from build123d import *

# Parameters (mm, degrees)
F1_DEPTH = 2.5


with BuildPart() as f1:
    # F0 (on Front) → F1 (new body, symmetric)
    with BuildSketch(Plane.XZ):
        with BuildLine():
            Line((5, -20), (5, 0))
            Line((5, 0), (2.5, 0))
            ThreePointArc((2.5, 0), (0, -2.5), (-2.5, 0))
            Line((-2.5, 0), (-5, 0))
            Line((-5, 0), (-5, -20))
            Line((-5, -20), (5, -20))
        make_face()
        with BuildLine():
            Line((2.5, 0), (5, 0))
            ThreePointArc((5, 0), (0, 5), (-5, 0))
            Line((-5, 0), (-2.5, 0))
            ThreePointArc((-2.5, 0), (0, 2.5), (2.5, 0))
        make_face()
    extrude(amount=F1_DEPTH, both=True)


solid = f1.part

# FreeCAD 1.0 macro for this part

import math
import FreeCAD as App
import Part
import Sketcher
from FreeCAD import Vector

doc = App.newDocument("Part")
body = doc.addObject("PartDesign::Body", "Body")

# Sketch on XZ plane
sketch1 = doc.addObject("Sketcher::SketchObject", "Sketch")
body.addObject(sketch1)
sketch1.AttachmentSupport = (doc.XZ_Plane, [""])
sketch1.MapMode = "FlatFace"
sketch1.addGeometry(Part.LineSegment(Vector(5, -20, 0), Vector(5, 0, 0)), False)
sketch1.addGeometry(Part.ArcOfCircle(Part.Circle(Vector(0, 0, 0), Vector(0, 0, 1), 5), math.radians(0), math.radians(180)), False)
sketch1.addGeometry(Part.LineSegment(Vector(-5, 0, 0), Vector(-5, -20, 0)), False)
sketch1.addGeometry(Part.LineSegment(Vector(-5, -20, 0), Vector(5, -20, 0)), False)
sketch1.addGeometry(Part.Circle(Vector(0, 0, 0), Vector(0, 0, 1), 2.5), False)
sketch1.addConstraint(Sketcher.Constraint("Tangent", 0, 2, 1, 1))
sketch1.addConstraint(Sketcher.Constraint("Tangent", 1, 2, 2, 1))
sketch1.addConstraint(Sketcher.Constraint("Coincident", 2, 2, 3, 1))
sketch1.addConstraint(Sketcher.Constraint("Coincident", 3, 2, 0, 1))
sketch1.addConstraint(Sketcher.Constraint("Vertical", 0))
sketch1.addConstraint(Sketcher.Constraint("Vertical", 2))
sketch1.addConstraint(Sketcher.Constraint("Horizontal", 3))
sketch1.addConstraint(Sketcher.Constraint("Coincident", 1, 3, -1, 1))
sketch1.addConstraint(Sketcher.Constraint("Coincident", 4, 3, -1, 1))
sketch1.addConstraint(Sketcher.Constraint("Diameter", 4, 5.0))
sketch1.addConstraint(Sketcher.Constraint("Radius", 1, 5.0))
sketch1.addConstraint(Sketcher.Constraint("DistanceY", 0, 1, 0, 2, 20.0))
pad1 = doc.addObject("PartDesign::Pad", "Pad")
body.addObject(pad1)
pad1.Profile = sketch1
pad1.Length = 5
pad1.Midplane = True

doc.recompute()
